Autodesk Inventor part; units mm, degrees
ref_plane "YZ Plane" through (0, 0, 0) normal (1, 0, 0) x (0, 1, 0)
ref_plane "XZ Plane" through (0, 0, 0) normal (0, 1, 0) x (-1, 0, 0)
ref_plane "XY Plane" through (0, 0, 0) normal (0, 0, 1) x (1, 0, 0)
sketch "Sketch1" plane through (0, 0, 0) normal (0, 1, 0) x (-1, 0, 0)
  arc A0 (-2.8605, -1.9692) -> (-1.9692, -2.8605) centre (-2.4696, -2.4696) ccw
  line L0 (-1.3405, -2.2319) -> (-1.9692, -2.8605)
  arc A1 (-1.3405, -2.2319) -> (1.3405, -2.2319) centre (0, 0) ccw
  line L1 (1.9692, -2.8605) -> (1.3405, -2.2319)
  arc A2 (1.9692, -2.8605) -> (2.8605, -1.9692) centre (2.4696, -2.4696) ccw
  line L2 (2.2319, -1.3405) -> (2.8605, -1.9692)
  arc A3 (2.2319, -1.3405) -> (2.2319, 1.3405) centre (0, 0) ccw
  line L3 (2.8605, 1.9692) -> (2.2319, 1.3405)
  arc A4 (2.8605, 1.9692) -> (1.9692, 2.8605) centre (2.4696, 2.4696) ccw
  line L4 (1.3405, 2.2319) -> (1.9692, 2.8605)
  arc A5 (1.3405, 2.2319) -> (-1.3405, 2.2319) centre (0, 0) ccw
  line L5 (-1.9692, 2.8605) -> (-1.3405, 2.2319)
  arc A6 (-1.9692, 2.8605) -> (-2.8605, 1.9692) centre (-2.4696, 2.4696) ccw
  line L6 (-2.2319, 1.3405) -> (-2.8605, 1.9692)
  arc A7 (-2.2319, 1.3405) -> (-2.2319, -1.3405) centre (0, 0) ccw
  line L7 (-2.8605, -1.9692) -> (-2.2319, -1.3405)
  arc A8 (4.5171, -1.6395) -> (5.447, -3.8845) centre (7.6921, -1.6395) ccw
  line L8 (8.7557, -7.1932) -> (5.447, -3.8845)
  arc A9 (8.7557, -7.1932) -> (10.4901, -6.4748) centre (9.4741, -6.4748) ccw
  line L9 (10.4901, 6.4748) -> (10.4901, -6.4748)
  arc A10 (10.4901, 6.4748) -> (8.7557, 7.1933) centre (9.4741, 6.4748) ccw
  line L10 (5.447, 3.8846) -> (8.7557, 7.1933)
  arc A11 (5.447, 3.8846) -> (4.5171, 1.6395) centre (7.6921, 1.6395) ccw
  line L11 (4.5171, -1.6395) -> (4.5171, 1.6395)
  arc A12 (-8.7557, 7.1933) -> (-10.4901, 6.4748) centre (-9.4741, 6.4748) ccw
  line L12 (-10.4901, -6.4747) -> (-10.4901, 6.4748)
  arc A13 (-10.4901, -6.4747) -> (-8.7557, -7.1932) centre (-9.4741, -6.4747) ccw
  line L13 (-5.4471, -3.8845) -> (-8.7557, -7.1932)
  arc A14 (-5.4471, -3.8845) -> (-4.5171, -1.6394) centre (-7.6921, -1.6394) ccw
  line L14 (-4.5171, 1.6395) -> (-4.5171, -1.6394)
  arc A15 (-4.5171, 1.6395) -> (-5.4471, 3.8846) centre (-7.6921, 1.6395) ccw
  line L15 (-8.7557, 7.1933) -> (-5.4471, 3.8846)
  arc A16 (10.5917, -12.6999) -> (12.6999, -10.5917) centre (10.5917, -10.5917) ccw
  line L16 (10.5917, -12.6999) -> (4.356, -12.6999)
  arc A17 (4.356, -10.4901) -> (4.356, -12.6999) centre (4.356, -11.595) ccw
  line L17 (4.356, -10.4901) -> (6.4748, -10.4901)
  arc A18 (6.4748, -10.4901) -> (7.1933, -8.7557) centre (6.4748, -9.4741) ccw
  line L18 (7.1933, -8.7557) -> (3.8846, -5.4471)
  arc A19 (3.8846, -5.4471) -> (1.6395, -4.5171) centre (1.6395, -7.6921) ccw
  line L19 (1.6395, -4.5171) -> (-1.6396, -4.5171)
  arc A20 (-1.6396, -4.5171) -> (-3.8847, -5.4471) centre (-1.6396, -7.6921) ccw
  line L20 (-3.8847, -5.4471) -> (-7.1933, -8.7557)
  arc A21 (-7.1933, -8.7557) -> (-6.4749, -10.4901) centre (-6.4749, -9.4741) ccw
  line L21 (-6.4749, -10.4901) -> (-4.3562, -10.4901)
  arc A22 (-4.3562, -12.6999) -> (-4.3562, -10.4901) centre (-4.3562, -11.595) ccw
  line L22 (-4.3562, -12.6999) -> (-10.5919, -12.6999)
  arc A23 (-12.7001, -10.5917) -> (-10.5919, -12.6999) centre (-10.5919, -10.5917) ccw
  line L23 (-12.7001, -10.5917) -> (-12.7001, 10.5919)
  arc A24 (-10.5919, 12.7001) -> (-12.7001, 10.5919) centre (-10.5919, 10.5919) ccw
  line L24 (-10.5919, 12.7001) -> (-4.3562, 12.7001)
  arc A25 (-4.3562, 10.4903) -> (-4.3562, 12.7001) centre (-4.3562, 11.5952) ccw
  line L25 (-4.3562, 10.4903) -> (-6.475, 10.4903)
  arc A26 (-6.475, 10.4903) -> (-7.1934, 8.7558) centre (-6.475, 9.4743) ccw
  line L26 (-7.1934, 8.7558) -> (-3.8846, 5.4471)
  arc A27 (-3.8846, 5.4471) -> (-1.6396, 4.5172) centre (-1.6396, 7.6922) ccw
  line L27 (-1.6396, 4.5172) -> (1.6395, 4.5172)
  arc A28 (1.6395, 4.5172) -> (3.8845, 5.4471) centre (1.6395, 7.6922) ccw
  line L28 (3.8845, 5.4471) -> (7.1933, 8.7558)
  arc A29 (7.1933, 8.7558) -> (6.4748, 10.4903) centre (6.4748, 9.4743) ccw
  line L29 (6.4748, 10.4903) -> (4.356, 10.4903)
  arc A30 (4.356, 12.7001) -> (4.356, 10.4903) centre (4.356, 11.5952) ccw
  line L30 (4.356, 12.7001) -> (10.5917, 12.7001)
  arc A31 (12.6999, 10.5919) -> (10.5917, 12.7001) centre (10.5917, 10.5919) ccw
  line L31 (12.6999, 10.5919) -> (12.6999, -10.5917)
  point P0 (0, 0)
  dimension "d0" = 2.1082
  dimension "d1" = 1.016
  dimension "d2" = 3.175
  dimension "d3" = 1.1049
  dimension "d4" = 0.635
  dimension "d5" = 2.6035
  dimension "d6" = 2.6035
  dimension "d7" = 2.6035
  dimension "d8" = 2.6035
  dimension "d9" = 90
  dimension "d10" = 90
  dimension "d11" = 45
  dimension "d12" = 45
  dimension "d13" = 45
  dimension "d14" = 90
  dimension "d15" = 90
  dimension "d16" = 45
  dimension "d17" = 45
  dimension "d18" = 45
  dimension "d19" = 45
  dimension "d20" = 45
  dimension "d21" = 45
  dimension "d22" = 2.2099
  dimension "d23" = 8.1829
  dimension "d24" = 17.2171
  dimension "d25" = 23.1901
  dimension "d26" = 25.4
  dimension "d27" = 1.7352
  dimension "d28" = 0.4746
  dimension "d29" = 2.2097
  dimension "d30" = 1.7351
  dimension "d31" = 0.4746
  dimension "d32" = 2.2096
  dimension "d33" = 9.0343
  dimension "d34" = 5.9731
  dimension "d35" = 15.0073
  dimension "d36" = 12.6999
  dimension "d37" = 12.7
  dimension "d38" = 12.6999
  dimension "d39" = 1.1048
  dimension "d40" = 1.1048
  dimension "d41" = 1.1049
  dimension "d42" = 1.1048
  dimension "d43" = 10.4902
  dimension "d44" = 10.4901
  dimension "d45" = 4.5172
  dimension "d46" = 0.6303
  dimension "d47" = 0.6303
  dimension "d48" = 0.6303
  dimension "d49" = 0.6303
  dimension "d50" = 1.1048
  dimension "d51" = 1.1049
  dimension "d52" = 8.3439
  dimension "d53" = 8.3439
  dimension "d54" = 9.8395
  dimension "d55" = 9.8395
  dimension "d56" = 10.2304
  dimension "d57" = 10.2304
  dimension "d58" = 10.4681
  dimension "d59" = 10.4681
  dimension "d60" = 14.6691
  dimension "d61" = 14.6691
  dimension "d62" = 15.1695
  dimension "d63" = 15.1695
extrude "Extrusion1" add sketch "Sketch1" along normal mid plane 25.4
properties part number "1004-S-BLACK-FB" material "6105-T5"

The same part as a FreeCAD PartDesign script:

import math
import FreeCAD as App
import Part
import Sketcher
Q = App.Units.Quantity

doc = App.newDocument("Part")
body = doc.addObject("PartDesign::Body", "Body")

# Sketch on XZ plane
sketch1 = body.newObject("Sketcher::SketchObject", "Sketch")
sketch1.AttachmentSupport = (doc.getObject("XZ_Plane"), [""])
sketch1.MapMode = "FlatFace"
sketch1.addGeometry(Part.LineSegment(App.Vector(-4.4, -12.7, 0), App.Vector(-10.6, -12.7, 0)), False)
sketch1.addGeometry(Part.ArcOfCircle(Part.Circle(App.Vector(-10.6, -10.6, 0), App.Vector(0, 0, 1), 2.1), math.radians(180), math.radians(270)), False)
sketch1.addGeometry(Part.LineSegment(App.Vector(-12.7, -10.6, 0), App.Vector(-12.7, 10.6, 0)), False)
sketch1.addGeometry(Part.ArcOfCircle(Part.Circle(App.Vector(-10.6, 10.6, 0), App.Vector(0, 0, 1), 2.1), math.radians(90), math.radians(180)), False)
sketch1.addGeometry(Part.LineSegment(App.Vector(-10.6, 12.7, 0), App.Vector(-4.4, 12.7, 0)), False)
sketch1.addGeometry(Part.ArcOfCircle(Part.Circle(App.Vector(-4.4, 11.6, 0), App.Vector(0, 0, 1), 1.1), math.radians(-90), math.radians(90)), False)
sketch1.addGeometry(Part.LineSegment(App.Vector(-4.4, 10.5, 0), App.Vector(-6.5, 10.5, 0)), False)
sketch1.addGeometry(Part.ArcOfCircle(Part.Circle(App.Vector(-6.5, 9.5, 0), App.Vector(0, 0, 1), 1), math.radians(90), math.radians(225)), False)
sketch1.addGeometry(Part.LineSegment(App.Vector(-7.2, 8.8, 0), App.Vector(-3.9, 5.4, 0)), False)
sketch1.addGeometry(Part.ArcOfCircle(Part.Circle(App.Vector(-1.6, 7.7, 0), App.Vector(0, 0, 1), 3.2), math.radians(-135), math.radians(-90)), False)
sketch1.addGeometry(Part.LineSegment(App.Vector(-1.6, 4.5, 0), App.Vector(1.6, 4.5, 0)), False)
sketch1.addGeometry(Part.ArcOfCircle(Part.Circle(App.Vector(1.6, 7.7, 0), App.Vector(0, 0, 1), 3.2), math.radians(-90), math.radians(-45)), False)
sketch1.addGeometry(Part.LineSegment(App.Vector(3.9, 5.4, 0), App.Vector(7.2, 8.8, 0)), False)
sketch1.addGeometry(Part.ArcOfCircle(Part.Circle(App.Vector(6.5, 9.5, 0), App.Vector(0, 0, 1), 1), math.radians(-45), math.radians(90)), False)
sketch1.addGeometry(Part.LineSegment(App.Vector(6.5, 10.5, 0), App.Vector(4.4, 10.5, 0)), False)
sketch1.addGeometry(Part.ArcOfCircle(Part.Circle(App.Vector(4.4, 11.6, 0), App.Vector(0, 0, 1), 1.1), math.radians(90), math.radians(270)), False)
sketch1.addGeometry(Part.LineSegment(App.Vector(4.4, 12.7, 0), App.Vector(10.6, 12.7, 0)), False)
sketch1.addGeometry(Part.ArcOfCircle(Part.Circle(App.Vector(10.6, 10.6, 0), App.Vector(0, 0, 1), 2.1), math.radians(0), math.radians(90)), False)
sketch1.addGeometry(Part.LineSegment(App.Vector(12.7, 10.6, 0), App.Vector(12.7, -10.6, 0)), False)
sketch1.addGeometry(Part.ArcOfCircle(Part.Circle(App.Vector(10.6, -10.6, 0), App.Vector(0, 0, 1), 2.1), math.radians(-90), math.radians(0)), False)
sketch1.addGeometry(Part.LineSegment(App.Vector(10.6, -12.7, 0), App.Vector(4.4, -12.7, 0)), False)
sketch1.addGeometry(Part.ArcOfCircle(Part.Circle(App.Vector(4.4, -11.6, 0), App.Vector(0, 0, 1), 1.1), math.radians(90), math.radians(270)), False)
sketch1.addGeometry(Part.LineSegment(App.Vector(4.4, -10.5, 0), App.Vector(6.5, -10.5, 0)), False)
sketch1.addGeometry(Part.ArcOfCircle(Part.Circle(App.Vector(6.5, -9.5, 0), App.Vector(0, 0, 1), 1), math.radians(-90), math.radians(45)), False)
sketch1.addGeometry(Part.LineSegment(App.Vector(7.2, -8.8, 0), App.Vector(3.9, -5.4, 0)), False)
sketch1.addGeometry(Part.ArcOfCircle(Part.Circle(App.Vector(1.6, -7.7, 0), App.Vector(0, 0, 1), 3.2), math.radians(45), math.radians(90)), False)
sketch1.addGeometry(Part.LineSegment(App.Vector(1.6, -4.5, 0), App.Vector(-1.6, -4.5, 0)), False)
sketch1.addGeometry(Part.ArcOfCircle(Part.Circle(App.Vector(-1.6, -7.7, 0), App.Vector(0, 0, 1), 3.2), math.radians(90), math.radians(135)), False)
sketch1.addGeometry(Part.LineSegment(App.Vector(-3.9, -5.4, 0), App.Vector(-7.2, -8.8, 0)), False)
sketch1.addGeometry(Part.ArcOfCircle(Part.Circle(App.Vector(-6.5, -9.5, 0), App.Vector(0, 0, 1), 1), math.radians(135), math.radians(270)), False)
sketch1.addGeometry(Part.LineSegment(App.Vector(-6.5, -10.5, 0), App.Vector(-4.4, -10.5, 0)), False)
sketch1.addGeometry(Part.ArcOfCircle(Part.Circle(App.Vector(-4.4, -11.6, 0), App.Vector(0, 0, 1), 1.1), math.radians(-90), math.radians(90)), False)
sketch1.addGeometry(Part.ArcOfCircle(Part.Circle(App.Vector(9.5, 6.5, 0), App.Vector(0, 0, 1), 1), math.radians(0), math.radians(135)), False)
sketch1.addGeometry(Part.LineSegment(App.Vector(8.8, 7.2, 0), App.Vector(5.4, 3.9, 0)), False)
sketch1.addGeometry(Part.ArcOfCircle(Part.Circle(App.Vector(7.7, 1.6, 0), App.Vector(0, 0, 1), 3.2), math.radians(135), math.radians(180)), False)
sketch1.addGeometry(Part.LineSegment(App.Vector(4.5, 1.6, 0), App.Vector(4.5, -1.6, 0)), False)
sketch1.addGeometry(Part.ArcOfCircle(Part.Circle(App.Vector(7.7, -1.6, 0), App.Vector(0, 0, 1), 3.2), math.radians(180), math.radians(225)), False)
sketch1.addGeometry(Part.LineSegment(App.Vector(5.4, -3.9, 0), App.Vector(8.8, -7.2, 0)), False)
sketch1.addGeometry(Part.ArcOfCircle(Part.Circle(App.Vector(9.5, -6.5, 0), App.Vector(0, 0, 1), 1), math.radians(-135), math.radians(0)), False)
sketch1.addGeometry(Part.LineSegment(App.Vector(10.5, -6.5, 0), App.Vector(10.5, 6.5, 0)), False)
sketch1.addGeometry(Part.ArcOfCircle(Part.Circle(App.Vector(2.5, -2.5, 0), App.Vector(0, 0, 1), 0.6), math.radians(-142), math.radians(52)), False)
sketch1.addGeometry(Part.LineSegment(App.Vector(2.9, -2, 0), App.Vector(2.2, -1.3, 0)), False)
sketch1.addGeometry(Part.ArcOfCircle(Part.Circle(App.Vector(0, 0, 0), App.Vector(0, 0, 1), 2.6), math.radians(-31), math.radians(31)), False)
sketch1.addGeometry(Part.LineSegment(App.Vector(2.2, 1.3, 0), App.Vector(2.9, 2, 0)), False)
sketch1.addGeometry(Part.ArcOfCircle(Part.Circle(App.Vector(2.5, 2.5, 0), App.Vector(0, 0, 1), 0.6), math.radians(-52), math.radians(142)), False)
sketch1.addGeometry(Part.LineSegment(App.Vector(2, 2.9, 0), App.Vector(1.3, 2.2, 0)), False)
sketch1.addGeometry(Part.ArcOfCircle(Part.Circle(App.Vector(0, 0, 0), App.Vector(0, 0, 1), 2.6), math.radians(59), math.radians(121)), False)
sketch1.addGeometry(Part.LineSegment(App.Vector(-1.3, 2.2, 0), App.Vector(-2, 2.9, 0)), False)
sketch1.addGeometry(Part.ArcOfCircle(Part.Circle(App.Vector(-2.5, 2.5, 0), App.Vector(0, 0, 1), 0.6), math.radians(38), math.radians(232)), False)
sketch1.addGeometry(Part.LineSegment(App.Vector(-2.9, 2, 0), App.Vector(-2.2, 1.3, 0)), False)
sketch1.addGeometry(Part.ArcOfCircle(Part.Circle(App.Vector(0, 0, 0), App.Vector(0, 0, 1), 2.6), math.radians(149), math.radians(211)), False)
sketch1.addGeometry(Part.LineSegment(App.Vector(-2.2, -1.3, 0), App.Vector(-2.9, -2, 0)), False)
sketch1.addGeometry(Part.ArcOfCircle(Part.Circle(App.Vector(-2.5, -2.5, 0), App.Vector(0, 0, 1), 0.6), math.radians(128), math.radians(322)), False)
sketch1.addGeometry(Part.LineSegment(App.Vector(-2, -2.9, 0), App.Vector(-1.3, -2.2, 0)), False)
sketch1.addGeometry(Part.ArcOfCircle(Part.Circle(App.Vector(0, 0, 0), App.Vector(0, 0, 1), 2.6), math.radians(-121), math.radians(-59)), False)
sketch1.addGeometry(Part.LineSegment(App.Vector(1.3, -2.2, 0), App.Vector(2, -2.9, 0)), False)
sketch1.addGeometry(Part.ArcOfCircle(Part.Circle(App.Vector(-7.7, -1.6, 0), App.Vector(0, 0, 1), 3.2), math.radians(-45), math.radians(0)), False)
sketch1.addGeometry(Part.LineSegment(App.Vector(-4.5, -1.6, 0), App.Vector(-4.5, 1.6, 0)), False)
sketch1.addGeometry(Part.ArcOfCircle(Part.Circle(App.Vector(-7.7, 1.6, 0), App.Vector(0, 0, 1), 3.2), math.radians(0), math.radians(45)), False)
sketch1.addGeometry(Part.LineSegment(App.Vector(-5.4, 3.9, 0), App.Vector(-8.8, 7.2, 0)), False)
sketch1.addGeometry(Part.ArcOfCircle(Part.Circle(App.Vector(-9.5, 6.5, 0), App.Vector(0, 0, 1), 1), math.radians(45), math.radians(180)), False)
sketch1.addGeometry(Part.LineSegment(App.Vector(-10.5, 6.5, 0), App.Vector(-10.5, -6.5, 0)), False)
sketch1.addGeometry(Part.ArcOfCircle(Part.Circle(App.Vector(-9.5, -6.5, 0), App.Vector(0, 0, 1), 1), math.radians(180), math.radians(315)), False)
sketch1.addGeometry(Part.LineSegment(App.Vector(-8.8, -7.2, 0), App.Vector(-5.4, -3.9, 0)), False)
sketch1.addConstraint(Sketcher.Constraint("Tangent", 0, 2, 1, 2))
sketch1.addConstraint(Sketcher.Constraint("Tangent", 1, 1, 2, 1))
sketch1.addConstraint(Sketcher.Constraint("Tangent", 2, 2, 3, 2))
sketch1.addConstraint(Sketcher.Constraint("Tangent", 3, 1, 4, 1))
sketch1.addConstraint(Sketcher.Constraint("Tangent", 4, 2, 5, 2))
sketch1.addConstraint(Sketcher.Constraint("Tangent", 5, 1, 6, 1))
sketch1.addConstraint(Sketcher.Constraint("Tangent", 6, 2, 7, 1))
sketch1.addConstraint(Sketcher.Constraint("Tangent", 7, 2, 8, 1))
sketch1.addConstraint(Sketcher.Constraint("Tangent", 8, 2, 9, 1))
sketch1.addConstraint(Sketcher.Constraint("Tangent", 9, 2, 10, 1))
sketch1.addConstraint(Sketcher.Constraint("Tangent", 10, 2, 11, 1))
sketch1.addConstraint(Sketcher.Constraint("Tangent", 11, 2, 12, 1))
sketch1.addConstraint(Sketcher.Constraint("Tangent", 12, 2, 13, 1))
sketch1.addConstraint(Sketcher.Constraint("Tangent", 13, 2, 14, 1))
sketch1.addConstraint(Sketcher.Constraint("Tangent", 14, 2, 15, 2))
sketch1.addConstraint(Sketcher.Constraint("Tangent", 15, 1, 16, 1))
sketch1.addConstraint(Sketcher.Constraint("Tangent", 16, 2, 17, 2))
sketch1.addConstraint(Sketcher.Constraint("Tangent", 17, 1, 18, 1))
sketch1.addConstraint(Sketcher.Constraint("Tangent", 18, 2, 19, 2))
sketch1.addConstraint(Sketcher.Constraint("Tangent", 19, 1, 20, 1))
sketch1.addConstraint(Sketcher.Constraint("Tangent", 20, 2, 21, 2))
sketch1.addConstraint(Sketcher.Constraint("Tangent", 21, 1, 22, 1))
sketch1.addConstraint(Sketcher.Constraint("Tangent", 22, 2, 23, 1))
sketch1.addConstraint(Sketcher.Constraint("Tangent", 23, 2, 24, 1))
sketch1.addConstraint(Sketcher.Constraint("Tangent", 24, 2, 25, 1))
sketch1.addConstraint(Sketcher.Constraint("Tangent", 25, 2, 26, 1))
sketch1.addConstraint(Sketcher.Constraint("Tangent", 26, 2, 27, 1))
sketch1.addConstraint(Sketcher.Constraint("Tangent", 27, 2, 28, 1))
sketch1.addConstraint(Sketcher.Constraint("Tangent", 28, 2, 29, 1))
sketch1.addConstraint(Sketcher.Constraint("Tangent", 29, 2, 30, 1))
sketch1.addConstraint(Sketcher.Constraint("Tangent", 30, 2, 31, 2))
sketch1.addConstraint(Sketcher.Constraint("Tangent", 31, 1, 0, 1))
sketch1.addConstraint(Sketcher.Constraint("Tangent", 32, 2, 33, 1))
sketch1.addConstraint(Sketcher.Constraint("Tangent", 33, 2, 34, 1))
sketch1.addConstraint(Sketcher.Constraint("Tangent", 34, 2, 35, 1))
sketch1.addConstraint(Sketcher.Constraint("Tangent", 35, 2, 36, 1))
sketch1.addConstraint(Sketcher.Constraint("Tangent", 36, 2, 37, 1))
sketch1.addConstraint(Sketcher.Constraint("Tangent", 37, 2, 38, 1))
sketch1.addConstraint(Sketcher.Constraint("Tangent", 38, 2, 39, 1))
sketch1.addConstraint(Sketcher.Constraint("Tangent", 39, 2, 32, 1))
sketch1.addConstraint(Sketcher.Constraint("Coincident", 40, 2, 41, 1))
sketch1.addConstraint(Sketcher.Constraint("Coincident", 41, 2, 42, 1))
sketch1.addConstraint(Sketcher.Constraint("Coincident", 42, 2, 43, 1))
sketch1.addConstraint(Sketcher.Constraint("Coincident", 43, 2, 44, 1))
sketch1.addConstraint(Sketcher.Constraint("Coincident", 44, 2, 45, 1))
sketch1.addConstraint(Sketcher.Constraint("Coincident", 45, 2, 46, 1))
sketch1.addConstraint(Sketcher.Constraint("Coincident", 46, 2, 47, 1))
sketch1.addConstraint(Sketcher.Constraint("Coincident", 47, 2, 48, 1))
sketch1.addConstraint(Sketcher.Constraint("Coincident", 48, 2, 49, 1))
sketch1.addConstraint(Sketcher.Constraint("Coincident", 49, 2, 50, 1))
sketch1.addConstraint(Sketcher.Constraint("Coincident", 50, 2, 51, 1))
sketch1.addConstraint(Sketcher.Constraint("Coincident", 51, 2, 52, 1))
sketch1.addConstraint(Sketcher.Constraint("Coincident", 52, 2, 53, 1))
sketch1.addConstraint(Sketcher.Constraint("Coincident", 53, 2, 54, 1))
sketch1.addConstraint(Sketcher.Constraint("Coincident", 54, 2, 55, 1))
sketch1.addConstraint(Sketcher.Constraint("Coincident", 55, 2, 40, 1))
sketch1.addConstraint(Sketcher.Constraint("Tangent", 56, 2, 57, 1))
sketch1.addConstraint(Sketcher.Constraint("Tangent", 57, 2, 58, 1))
sketch1.addConstraint(Sketcher.Constraint("Tangent", 58, 2, 59, 1))
sketch1.addConstraint(Sketcher.Constraint("Tangent", 59, 2, 60, 1))
sketch1.addConstraint(Sketcher.Constraint("Tangent", 60, 2, 61, 1))
sketch1.addConstraint(Sketcher.Constraint("Tangent", 61, 2, 62, 1))
sketch1.addConstraint(Sketcher.Constraint("Tangent", 62, 2, 63, 1))
sketch1.addConstraint(Sketcher.Constraint("Tangent", 63, 2, 56, 1))
sketch1.addConstraint(Sketcher.Constraint("Horizontal", 0))
sketch1.addConstraint(Sketcher.Constraint("Vertical", 2))
sketch1.addConstraint(Sketcher.Constraint("Horizontal", 4))
sketch1.addConstraint(Sketcher.Constraint("Horizontal", 6))
sketch1.addConstraint(Sketcher.Constraint("Horizontal", 10))
sketch1.addConstraint(Sketcher.Constraint("Horizontal", 14))
sketch1.addConstraint(Sketcher.Constraint("Horizontal", 16))
sketch1.addConstraint(Sketcher.Constraint("Vertical", 18))
sketch1.addConstraint(Sketcher.Constraint("Horizontal", 20))
sketch1.addConstraint(Sketcher.Constraint("Horizontal", 22))
sketch1.addConstraint(Sketcher.Constraint("Horizontal", 26))
sketch1.addConstraint(Sketcher.Constraint("Horizontal", 30))
sketch1.addConstraint(Sketcher.Constraint("Vertical", 35))
sketch1.addConstraint(Sketcher.Constraint("Vertical", 39))
sketch1.addConstraint(Sketcher.Constraint("Vertical", 57))
sketch1.addConstraint(Sketcher.Constraint("Vertical", 61))
sketch1.addConstraint(Sketcher.Constraint("Coincident", 42, 3, -1, 1))
sketch1.addConstraint(Sketcher.Constraint("Coincident", 46, 3, -1, 1))
sketch1.addConstraint(Sketcher.Constraint("Coincident", 50, 3, -1, 1))
sketch1.addConstraint(Sketcher.Constraint("Coincident", 54, 3, -1, 1))
sketch1.addConstraint(Sketcher.Constraint("Equal", 1, 3))
sketch1.addConstraint(Sketcher.Constraint("Equal", 9, 11))
sketch1.addConstraint(Sketcher.Constraint("Equal", 7, 13))
sketch1.addConstraint(Sketcher.Constraint("Equal", 5, 15))
sketch1.addConstraint(Sketcher.Constraint("Equal", 3, 17))
sketch1.addConstraint(Sketcher.Constraint("Equal", 17, 19))
sketch1.addConstraint(Sketcher.Constraint("Equal", 15, 21))
sketch1.addConstraint(Sketcher.Constraint("Equal", 13, 23))
sketch1.addConstraint(Sketcher.Constraint("Equal", 11, 25))
sketch1.addConstraint(Sketcher.Constraint("Equal", 25, 27))
sketch1.addConstraint(Sketcher.Constraint("Equal", 23, 29))
sketch1.addConstraint(Sketcher.Constraint("Equal", 21, 31))
sketch1.addConstraint(Sketcher.Constraint("Equal", 29, 32))
sketch1.addConstraint(Sketcher.Constraint("Equal", 27, 34))
sketch1.addConstraint(Sketcher.Constraint("Equal", 34, 36))
sketch1.addConstraint(Sketcher.Constraint("Equal", 32, 38))
sketch1.addConstraint(Sketcher.Constraint("Equal", 40, 44))
sketch1.addConstraint(Sketcher.Constraint("Equal", 42, 46))
sketch1.addConstraint(Sketcher.Constraint("Equal", 44, 48))
sketch1.addConstraint(Sketcher.Constraint("Equal", 46, 50))
sketch1.addConstraint(Sketcher.Constraint("Equal", 48, 52))
sketch1.addConstraint(Sketcher.Constraint("Equal", 50, 54))
sketch1.addConstraint(Sketcher.Constraint("Equal", 36, 56))
sketch1.addConstraint(Sketcher.Constraint("Equal", 56, 58))
sketch1.addConstraint(Sketcher.Constraint("Equal", 38, 60))
sketch1.addConstraint(Sketcher.Constraint("Equal", 60, 62))
sketch1.addConstraint(Sketcher.Constraint("Symmetric", 1, 3, 17, 3, -1, 1))
sketch1.addConstraint(Sketcher.Constraint("Symmetric", 5, 3, 21, 3, -1, 1))
sketch1.addConstraint(Sketcher.Constraint("Symmetric", 9, 3, 25, 3, -1, 1))
sketch1.addConstraint(Sketcher.Constraint("Symmetric", 40, 3, 48, 3, -1, 1))
sketch1.addConstraint(Sketcher.Constraint("Symmetric", 44, 3, 52, 3, -1, 1))
sketch1.addConstraint(Sketcher.Constraint("Symmetric", 34, 3, 56, 3, -1, 1))
sketch1.addConstraint(Sketcher.Constraint("Symmetric", 38, 3, 60, 3, -1, 1))
sketch1.addConstraint(Sketcher.Constraint("Symmetric", 11, 2, 27, 2, -1, 1))
sketch1.addConstraint(Sketcher.Constraint("Symmetric", 7, 3, 13, 3, -2))
sketch1.addConstraint(Sketcher.Constraint("Symmetric", 44, 3, 48, 3, -2))
sketch1.addConstraint(Sketcher.Constraint("Symmetric", 24, 2, 27, 2, -2))
sketch1.addConstraint(Sketcher.Constraint("Symmetric", 33, 2, 58, 2, -2))
sketch1.addConstraint(Sketcher.Constraint("Symmetric", 37, 2, 62, 2, -2))
sketch1.addConstraint(Sketcher.Constraint("Perpendicular", 8, 12))
sketch1.addConstraint(Sketcher.Constraint("Parallel", 28, 33))
sketch1.addConstraint(Sketcher.Constraint("Parallel", 37, 41))
sketch1.addConstraint(Sketcher.Constraint("Perpendicular", 41, 43))
sketch1.addConstraint(Sketcher.Constraint("Parallel", 43, 45))
sketch1.addConstraint(Sketcher.Constraint("Perpendicular", 45, 47))
sketch1.addConstraint(Sketcher.Constraint("Parallel", 47, 49))
sketch1.addConstraint(Sketcher.Constraint("Perpendicular", 49, 51))
sketch1.addConstraint(Sketcher.Constraint("Parallel", 51, 53))
sketch1.addConstraint(Sketcher.Constraint("Perpendicular", 53, 55))
sketch1.addConstraint(Sketcher.Constraint("Horizontal", 45, 2, 46, 2))
sketch1.addConstraint(Sketcher.Constraint("Horizontal", 43, 2, 48, 2))
sketch1.addConstraint(Sketcher.Constraint("Horizontal", 41, 2, 50, 2))
sketch1.addConstraint(Sketcher.Constraint("Horizontal", 53, 2, 54, 2))
sketch1.addConstraint(Sketcher.Constraint("Vertical", 15, 3, 21, 3))
sketch1.addConstraint(Sketcher.Constraint("Vertical", 5, 3, 31, 3))
sketch1.addConstraint(Sketcher.Constraint("Vertical", 41, 2, 42, 2))
sketch1.addConstraint(Sketcher.Constraint("Vertical", 47, 2, 52, 2))
sketch1.addConstraint(Sketcher.Constraint("Equal", 26, 35))
sketch1.addConstraint(Sketcher.Constraint("Equal", 28, 33))
sketch1.addConstraint(Sketcher.Constraint("Equal", 43, 45))
sketch1.addConstraint(Sketcher.Constraint("Radius", 7, Q("0.04 in")))
sketch1.addConstraint(Sketcher.Constraint("Radius", 1, Q("0.083 in")))
sketch1.addConstraint(Sketcher.Constraint("Radius", 9, Q("0.125 in")))
sketch1.addConstraint(Sketcher.Constraint("Radius", 40, Q("0.025 in")))
sketch1.addConstraint(Sketcher.Constraint("DistanceY", 0, 2, -1, 1, Q("0.5 in")))
sketch1.addConstraint(Sketcher.Constraint("DistanceX", 1, 1, -1, 1, Q("0.5 in")))
sketch1.addConstraint(Sketcher.Constraint("Radius", 5, Q("0.0435 in")))
sketch1.addConstraint(Sketcher.Constraint("Radius", 42, Q("0.1025 in")))
sketch1.addConstraint(Sketcher.Constraint("DistanceX", -1, 1, 38, 2, Q("0.413 in")))
sketch1.addConstraint(Sketcher.Constraint("DistanceY", -1, 1, 9, 2, 4.5172))
sketch1.addConstraint(Sketcher.Constraint("Distance", 41, Q("0.035 in")))
sketch1.addConstraint(Sketcher.Constraint("DistanceX", 0, 2, 0, 1, Q("0.2455 in")))
sketch1.addConstraint(Sketcher.Constraint("DistanceX", 10, 1, 10, 2, Q("0.1291 in")))
sketch1.addConstraint(Sketcher.Constraint("DistanceX", -1, 1, 40, 3, 2.4696))
sketch1.addConstraint(Sketcher.Constraint("DistanceY", 40, 3, -1, 1, 2.4696))
pad1 = body.newObject("PartDesign::Pad", "Pad")
pad1.Profile = sketch1
pad1.Length = Q("1 in")
pad1.Midplane = True

doc.recompute()
